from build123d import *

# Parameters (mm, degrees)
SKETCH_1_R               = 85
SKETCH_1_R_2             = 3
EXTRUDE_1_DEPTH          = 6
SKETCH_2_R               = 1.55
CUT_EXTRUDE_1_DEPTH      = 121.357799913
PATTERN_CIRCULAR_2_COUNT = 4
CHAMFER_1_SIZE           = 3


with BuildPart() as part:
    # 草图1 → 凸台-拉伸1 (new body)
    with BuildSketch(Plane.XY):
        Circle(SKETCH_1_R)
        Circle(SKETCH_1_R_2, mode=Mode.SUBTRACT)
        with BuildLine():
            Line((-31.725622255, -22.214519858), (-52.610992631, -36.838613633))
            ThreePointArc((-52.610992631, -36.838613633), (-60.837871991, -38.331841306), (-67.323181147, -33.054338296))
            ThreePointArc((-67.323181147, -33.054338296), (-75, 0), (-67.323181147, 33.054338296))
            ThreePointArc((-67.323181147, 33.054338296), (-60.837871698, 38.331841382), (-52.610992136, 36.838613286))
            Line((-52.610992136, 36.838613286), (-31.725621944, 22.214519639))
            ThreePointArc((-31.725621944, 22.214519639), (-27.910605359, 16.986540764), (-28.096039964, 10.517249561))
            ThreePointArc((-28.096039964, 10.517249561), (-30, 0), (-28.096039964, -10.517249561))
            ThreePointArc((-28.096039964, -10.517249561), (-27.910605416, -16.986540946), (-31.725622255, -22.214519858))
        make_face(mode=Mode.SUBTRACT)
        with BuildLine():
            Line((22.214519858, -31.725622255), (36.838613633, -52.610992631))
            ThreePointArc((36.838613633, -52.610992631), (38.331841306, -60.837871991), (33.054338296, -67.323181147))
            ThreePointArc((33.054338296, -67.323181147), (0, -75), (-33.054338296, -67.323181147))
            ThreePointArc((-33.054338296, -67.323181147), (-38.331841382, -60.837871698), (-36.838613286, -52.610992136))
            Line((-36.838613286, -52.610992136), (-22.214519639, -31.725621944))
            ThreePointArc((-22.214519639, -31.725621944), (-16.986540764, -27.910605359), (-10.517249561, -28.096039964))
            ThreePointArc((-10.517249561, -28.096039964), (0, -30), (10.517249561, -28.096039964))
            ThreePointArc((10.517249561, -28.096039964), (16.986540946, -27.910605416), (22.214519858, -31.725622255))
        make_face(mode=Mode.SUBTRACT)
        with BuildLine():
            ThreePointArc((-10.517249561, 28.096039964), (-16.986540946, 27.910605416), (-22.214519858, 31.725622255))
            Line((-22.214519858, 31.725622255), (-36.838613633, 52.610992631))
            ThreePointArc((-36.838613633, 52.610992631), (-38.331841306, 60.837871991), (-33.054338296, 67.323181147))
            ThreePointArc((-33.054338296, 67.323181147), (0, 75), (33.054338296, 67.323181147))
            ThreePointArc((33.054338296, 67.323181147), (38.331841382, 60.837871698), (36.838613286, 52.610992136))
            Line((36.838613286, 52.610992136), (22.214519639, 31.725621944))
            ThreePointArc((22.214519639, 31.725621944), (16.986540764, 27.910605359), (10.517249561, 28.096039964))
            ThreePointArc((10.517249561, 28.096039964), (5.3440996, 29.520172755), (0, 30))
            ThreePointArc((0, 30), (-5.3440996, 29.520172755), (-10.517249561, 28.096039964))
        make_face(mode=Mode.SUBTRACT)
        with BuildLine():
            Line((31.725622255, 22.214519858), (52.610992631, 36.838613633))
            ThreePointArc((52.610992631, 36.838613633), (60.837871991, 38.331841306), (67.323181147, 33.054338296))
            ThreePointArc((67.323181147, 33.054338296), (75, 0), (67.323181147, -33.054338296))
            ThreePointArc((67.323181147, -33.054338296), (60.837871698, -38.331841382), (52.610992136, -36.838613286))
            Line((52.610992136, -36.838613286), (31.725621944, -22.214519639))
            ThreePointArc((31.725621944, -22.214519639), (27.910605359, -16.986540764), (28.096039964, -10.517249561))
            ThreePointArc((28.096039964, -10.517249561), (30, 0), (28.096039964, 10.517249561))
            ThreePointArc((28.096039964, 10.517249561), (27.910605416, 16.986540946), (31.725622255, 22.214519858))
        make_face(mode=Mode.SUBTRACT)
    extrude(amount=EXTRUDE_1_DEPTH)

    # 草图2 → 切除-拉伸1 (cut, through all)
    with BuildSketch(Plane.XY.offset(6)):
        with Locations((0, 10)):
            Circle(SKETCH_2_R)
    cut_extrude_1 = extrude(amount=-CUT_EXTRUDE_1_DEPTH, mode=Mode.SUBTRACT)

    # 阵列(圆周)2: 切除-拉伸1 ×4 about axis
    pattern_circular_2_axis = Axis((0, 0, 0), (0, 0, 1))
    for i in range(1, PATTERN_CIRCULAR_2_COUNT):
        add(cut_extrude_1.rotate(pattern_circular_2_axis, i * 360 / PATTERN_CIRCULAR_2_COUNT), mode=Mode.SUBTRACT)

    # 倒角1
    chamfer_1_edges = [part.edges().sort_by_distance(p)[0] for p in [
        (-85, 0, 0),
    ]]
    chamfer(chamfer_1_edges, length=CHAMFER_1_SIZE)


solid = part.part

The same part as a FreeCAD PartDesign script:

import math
import FreeCAD as App
import Part
import Sketcher

V = App.Vector
Q = App.Units.Quantity


def edges_at(feature, points):
    """Names of the edges that pass closest to the given points."""
    edges = feature.Shape.Edges
    near = lambda p: min(range(len(edges)), key=lambda i: edges[i].distToShape(Part.Vertex(*p))[0])
    return sorted({f"Edge{near(p) + 1}" for p in points})

doc = App.newDocument("Part")
params = doc.addObject("Spreadsheet::Sheet", "Params")
for row, (alias, value) in enumerate([
    ("sketch1_diameter", "170 mm"),
    ("sketch1_diameter2", "6 mm"),
    ("sketch1_radius", "10 mm"),
    ("sketch1_radius2", "75 mm"),
    ("sketch1_radius3", "30 mm"),
    ("pad1_length", "6 mm"),
    ("sketch2_diameter", "3.1 mm"),
    ("chamfer_size", "3 mm"),
], start=1):
    params.set(f"A{row}", alias)
    params.set(f"B{row}", "=" + value)
    params.setAlias(f"B{row}", alias)

body = doc.addObject("PartDesign::Body", "Body")

sketch1 = body.newObject("Sketcher::SketchObject", "Sketch")
sketch1.AttachmentSupport = (doc.getObject("XY_Plane"), [""])
sketch1.MapMode = "FlatFace"
sketch1.addGeometry(Part.Circle(V(0, 0, 0), V(0, 0, 1), 85), False)
sketch1.addGeometry(Part.ArcOfCircle(Part.Circle(V(14.022999, -37.461387, 0), V(0, 0, 1), 10), math.radians(35), math.radians(110.522488)), False)
sketch1.addGeometry(Part.LineSegment(V(22.21452, -31.725622, 0), V(36.838614, -52.610993, 0)), False)
sketch1.addGeometry(Part.ArcOfCircle(Part.Circle(V(28.647093, -58.346757, 0), V(0, 0, 1), 10), math.radians(-63.849883), math.radians(35)), False)
sketch1.addGeometry(Part.ArcOfCircle(Part.Circle(V(0, 0, 0), V(0, 0, 1), 75), math.radians(-116.150117), math.radians(-63.849883)), False)
sketch1.addGeometry(Part.ArcOfCircle(Part.Circle(V(-28.647093, -58.346757, 0), V(0, 0, 1), 10), math.radians(144.999997), math.radians(243.849883)), False)
sketch1.addGeometry(Part.LineSegment(V(-36.838613, -52.610992, 0), V(-22.21452, -31.725622, 0)), False)
sketch1.addGeometry(Part.ArcOfCircle(Part.Circle(V(-14.022999, -37.461387, 0), V(0, 0, 1), 10), math.radians(69.477512), math.radians(144.999998)), False)
sketch1.addGeometry(Part.ArcOfCircle(Part.Circle(V(0, 0, 0), V(0, 0, 1), 30), math.radians(-110.522488), math.radians(-69.477512)), False)
sketch1.addGeometry(Part.ArcOfCircle(Part.Circle(V(37.461387, 14.022999, 0), V(0, 0, 1), 10), math.radians(125), math.radians(200.522488)), False)
sketch1.addGeometry(Part.LineSegment(V(31.725622, 22.21452, 0), V(52.610993, 36.838614, 0)), False)
sketch1.addGeometry(Part.ArcOfCircle(Part.Circle(V(58.346757, 28.647093, 0), V(0, 0, 1), 10), math.radians(26.150117), math.radians(125)), False)
sketch1.addGeometry(Part.ArcOfCircle(Part.Circle(V(0, 0, 0), V(0, 0, 1), 75), math.radians(-26.150117), math.radians(26.150117)), False)
sketch1.addGeometry(Part.ArcOfCircle(Part.Circle(V(58.346757, -28.647093, 0), V(0, 0, 1), 10), math.radians(-125.000003), math.radians(-26.150117)), False)
sketch1.addGeometry(Part.LineSegment(V(52.610992, -36.838613, 0), V(31.725622, -22.21452, 0)), False)
sketch1.addGeometry(Part.ArcOfCircle(Part.Circle(V(37.461387, -14.022999, 0), V(0, 0, 1), 10), math.radians(159.477512), math.radians(234.999998)), False)
sketch1.addGeometry(Part.ArcOfCircle(Part.Circle(V(0, 0, 0), V(0, 0, 1), 30), math.radians(-20.522488), math.radians(20.522488)), False)
sketch1.addGeometry(Part.ArcOfCircle(Part.Circle(V(-37.461387, -14.022999, 0), V(0, 0, 1), 10), math.radians(-55), math.radians(20.522488)), False)
sketch1.addGeometry(Part.LineSegment(V(-31.725622, -22.21452, 0), V(-52.610993, -36.838614, 0)), False)
sketch1.addGeometry(Part.ArcOfCircle(Part.Circle(V(-58.346757, -28.647093, 0), V(0, 0, 1), 10), math.radians(-153.849883), math.radians(-55)), False)
sketch1.addGeometry(Part.ArcOfCircle(Part.Circle(V(0, 0, 0), V(0, 0, 1), 75), math.radians(153.849883), math.radians(206.150117)), False)
sketch1.addGeometry(Part.ArcOfCircle(Part.Circle(V(-58.346757, 28.647093, 0), V(0, 0, 1), 10), math.radians(54.999997), math.radians(153.849883)), False)
sketch1.addGeometry(Part.LineSegment(V(-52.610992, 36.838613, 0), V(-31.725622, 22.21452, 0)), False)
sketch1.addGeometry(Part.ArcOfCircle(Part.Circle(V(-37.461387, 14.022999, 0), V(0, 0, 1), 10), math.radians(-20.522488), math.radians(54.999998)), False)
sketch1.addGeometry(Part.ArcOfCircle(Part.Circle(V(0, 0, 0), V(0, 0, 1), 30), math.radians(159.477512), math.radians(200.522488)), False)
sketch1.addGeometry(Part.Circle(V(0, 0, 0), V(0, 0, 1), 3), False)
sketch1.addGeometry(Part.ArcOfCircle(Part.Circle(V(0, 0, 0), V(0, 0, 1), 30), math.radians(90), math.radians(110.522488)), False)
sketch1.addGeometry(Part.ArcOfCircle(Part.Circle(V(-14.022999, 37.461387, 0), V(0, 0, 1), 10), math.radians(-145), math.radians(-69.477512)), False)
sketch1.addGeometry(Part.LineSegment(V(-22.21452, 31.725622, 0), V(-36.838614, 52.610993, 0)), False)
sketch1.addGeometry(Part.ArcOfCircle(Part.Circle(V(-28.647093, 58.346757, 0), V(0, 0, 1), 10), math.radians(116.150117), math.radians(215)), False)
sketch1.addGeometry(Part.ArcOfCircle(Part.Circle(V(0, 0, 0), V(0, 0, 1), 75), math.radians(63.849883), math.radians(116.150117)), False)
sketch1.addGeometry(Part.ArcOfCircle(Part.Circle(V(28.647093, 58.346757, 0), V(0, 0, 1), 10), math.radians(-35.000003), math.radians(63.849883)), False)
sketch1.addGeometry(Part.LineSegment(V(36.838613, 52.610992, 0), V(22.21452, 31.725622, 0)), False)
sketch1.addGeometry(Part.ArcOfCircle(Part.Circle(V(14.022999, 37.461387, 0), V(0, 0, 1), 10), math.radians(-110.522488), math.radians(-35.000002)), False)
sketch1.addGeometry(Part.ArcOfCircle(Part.Circle(V(0, 0, 0), V(0, 0, 1), 30), math.radians(69.477512), math.radians(90)), False)
sketch1.addConstraint(Sketcher.Constraint("Tangent", 1, 1, 2, 1))
sketch1.addConstraint(Sketcher.Constraint("Tangent", 2, 2, 3, 2))
sketch1.addConstraint(Sketcher.Constraint("Tangent", 3, 1, 4, 2))
sketch1.addConstraint(Sketcher.Constraint("Tangent", 4, 1, 5, 2))
sketch1.addConstraint(Sketcher.Constraint("Tangent", 5, 1, 6, 1))
sketch1.addConstraint(Sketcher.Constraint("Tangent", 6, 2, 7, 2))
sketch1.addConstraint(Sketcher.Constraint("Tangent", 7, 1, 8, 1))
sketch1.addConstraint(Sketcher.Constraint("Tangent", 8, 2, 1, 2))
sketch1.addConstraint(Sketcher.Constraint("Tangent", 9, 1, 10, 1))
sketch1.addConstraint(Sketcher.Constraint("Tangent", 10, 2, 11, 2))
sketch1.addConstraint(Sketcher.Constraint("Tangent", 11, 1, 12, 2))
sketch1.addConstraint(Sketcher.Constraint("Tangent", 12, 1, 13, 2))
sketch1.addConstraint(Sketcher.Constraint("Tangent", 13, 1, 14, 1))
sketch1.addConstraint(Sketcher.Constraint("Tangent", 14, 2, 15, 2))
sketch1.addConstraint(Sketcher.Constraint("Tangent", 15, 1, 16, 1))
sketch1.addConstraint(Sketcher.Constraint("Tangent", 16, 2, 9, 2))
sketch1.addConstraint(Sketcher.Constraint("Tangent", 17, 1, 18, 1))
sketch1.addConstraint(Sketcher.Constraint("Tangent", 18, 2, 19, 2))
sketch1.addConstraint(Sketcher.Constraint("Tangent", 19, 1, 20, 2))
sketch1.addConstraint(Sketcher.Constraint("Tangent", 20, 1, 21, 2))
sketch1.addConstraint(Sketcher.Constraint("Tangent", 21, 1, 22, 1))
sketch1.addConstraint(Sketcher.Constraint("Tangent", 22, 2, 23, 2))
sketch1.addConstraint(Sketcher.Constraint("Tangent", 23, 1, 24, 1))
sketch1.addConstraint(Sketcher.Constraint("Tangent", 24, 2, 17, 2))
sketch1.addConstraint(Sketcher.Constraint("Tangent", 26, 2, 27, 2))
sketch1.addConstraint(Sketcher.Constraint("Tangent", 27, 1, 28, 1))
sketch1.addConstraint(Sketcher.Constraint("Tangent", 28, 2, 29, 2))
sketch1.addConstraint(Sketcher.Constraint("Tangent", 29, 1, 30, 2))
sketch1.addConstraint(Sketcher.Constraint("Tangent", 30, 1, 31, 2))
sketch1.addConstraint(Sketcher.Constraint("Tangent", 31, 1, 32, 1))
sketch1.addConstraint(Sketcher.Constraint("Tangent", 32, 2, 33, 2))
sketch1.addConstraint(Sketcher.Constraint("Tangent", 33, 1, 34, 1))
sketch1.addConstraint(Sketcher.Constraint("Tangent", 34, 2, 26, 1))
sketch1.addConstraint(Sketcher.Constraint("Coincident", 0, 3, -1, 1))
sketch1.addConstraint(Sketcher.Constraint("Coincident", 4, 3, -1, 1))
sketch1.addConstraint(Sketcher.Constraint("Coincident", 8, 3, -1, 1))
sketch1.addConstraint(Sketcher.Constraint("Coincident", 12, 3, -1, 1))
sketch1.addConstraint(Sketcher.Constraint("Coincident", 16, 3, -1, 1))
sketch1.addConstraint(Sketcher.Constraint("Coincident", 20, 3, -1, 1))
sketch1.addConstraint(Sketcher.Constraint("Coincident", 24, 3, -1, 1))
sketch1.addConstraint(Sketcher.Constraint("Coincident", 25, 3, -1, 1))
sketch1.addConstraint(Sketcher.Constraint("Coincident", 26, 3, -1, 1))
sketch1.addConstraint(Sketcher.Constraint("Coincident", 30, 3, -1, 1))
sketch1.addConstraint(Sketcher.Constraint("Equal", 1, 3))
sketch1.addConstraint(Sketcher.Constraint("Equal", 3, 5))
sketch1.addConstraint(Sketcher.Constraint("Equal", 5, 7))
sketch1.addConstraint(Sketcher.Constraint("Equal", 7, 9))
sketch1.addConstraint(Sketcher.Constraint("Equal", 9, 11))
sketch1.addConstraint(Sketcher.Constraint("Equal", 4, 12))
sketch1.addConstraint(Sketcher.Constraint("Equal", 11, 13))
sketch1.addConstraint(Sketcher.Constraint("Equal", 13, 15))
sketch1.addConstraint(Sketcher.Constraint("Equal", 8, 16))
sketch1.addConstraint(Sketcher.Constraint("Equal", 15, 17))
sketch1.addConstraint(Sketcher.Constraint("Equal", 17, 19))
sketch1.addConstraint(Sketcher.Constraint("Equal", 12, 20))
sketch1.addConstraint(Sketcher.Constraint("Equal", 19, 21))
sketch1.addConstraint(Sketcher.Constraint("Equal", 21, 23))
sketch1.addConstraint(Sketcher.Constraint("Equal", 16, 24))
sketch1.addConstraint(Sketcher.Constraint("Equal", 24, 26))
sketch1.addConstraint(Sketcher.Constraint("Equal", 23, 27))
sketch1.addConstraint(Sketcher.Constraint("Equal", 27, 29))
sketch1.addConstraint(Sketcher.Constraint("Equal", 20, 30))
sketch1.addConstraint(Sketcher.Constraint("Equal", 29, 31))
sketch1.addConstraint(Sketcher.Constraint("Equal", 31, 33))
sketch1.addConstraint(Sketcher.Constraint("Equal", 26, 34))
sketch1.addConstraint(Sketcher.Constraint("Symmetric", 9, 1, 17, 1, -1, 1))
sketch1.addConstraint(Sketcher.Constraint("Symmetric", 13, 1, 21, 1, -1, 1))
sketch1.addConstraint(Sketcher.Constraint("Symmetric", 1, 1, 27, 1, -1, 1))
sketch1.addConstraint(Sketcher.Constraint("Symmetric", 5, 1, 31, 1, -1, 1))
sketch1.addConstraint(Sketcher.Constraint("Symmetric", 2, 2, 5, 1, -2))
sketch1.addConstraint(Sketcher.Constraint("Symmetric", 14, 2, 17, 1, -2))
sketch1.addConstraint(Sketcher.Constraint("PointOnObject", 34, 2, -2))
sketch1.addConstraint(Sketcher.Constraint("Perpendicular", 2, 10))
sketch1.addConstraint(Sketcher.Constraint("Equal", 6, 10))
sketch1.addConstraint(Sketcher.Constraint("Diameter", 0, 170.0))
sketch1.addConstraint(Sketcher.Constraint("Diameter", 25, 6.0))
sketch1.addConstraint(Sketcher.Constraint("Radius", 1, 10.0))
sketch1.addConstraint(Sketcher.Constraint("Radius", 4, 75.0))
sketch1.addConstraint(Sketcher.Constraint("Radius", 8, 30.0))
sketch1.addConstraint(Sketcher.Constraint("Angle", 2, Q("-55 deg")))
sketch1.addConstraint(Sketcher.Constraint("DistanceX", -1, 1, 1, 3, 14.022999))
sketch1.setExpression("Constraints[74]", "Params.sketch1_diameter")
sketch1.setExpression("Constraints[75]", "Params.sketch1_diameter2")
sketch1.setExpression("Constraints[76]", "Params.sketch1_radius")
sketch1.setExpression("Constraints[77]", "Params.sketch1_radius2")
sketch1.setExpression("Constraints[78]", "Params.sketch1_radius3")
pad1 = body.newObject("PartDesign::Pad", "Pad")
pad1.Profile = sketch1
pad1.setExpression("Length", "Params.pad1_length")

sketch2 = body.newObject("Sketcher::SketchObject", "Sketch001")
sketch2.AttachmentSupport = (doc.getObject("XY_Plane"), [""])
sketch2.MapMode = "FlatFace"
sketch2.AttachmentOffset = App.Placement(V(0, 0, 6), App.Rotation())
sketch2.addGeometry(Part.Circle(V(0, 10, 0), V(0, 0, 1), 1.55), False)
sketch2.addConstraint(Sketcher.Constraint("PointOnObject", 0, 3, -2))
sketch2.addConstraint(Sketcher.Constraint("Diameter", 0, 3.1))
sketch2.addConstraint(Sketcher.Constraint("DistanceY", -1, 1, 0, 3, 10.0))
sketch2.setExpression("Constraints[1]", "Params.sketch2_diameter")
pocket1 = body.newObject("PartDesign::Pocket", "Pocket")
pocket1.Profile = sketch2
pocket1.Type = "ThroughAll"
doc.recompute()

polarpattern = body.newObject("PartDesign::PolarPattern", "PolarPattern")
polarpattern.Originals = [pocket1]
polarpattern.Axis = (doc.getObject("Z_Axis"), [""])
polarpattern.Angle = 360
polarpattern.Occurrences = 4
body.Tip = polarpattern
doc.recompute()

chamfer = body.newObject("PartDesign::Chamfer", "Chamfer")
chamfer.Base = (polarpattern, edges_at(polarpattern, [(-85, 0, 0)]))
chamfer.setExpression("Size", "Params.chamfer_size")

doc.recompute()
